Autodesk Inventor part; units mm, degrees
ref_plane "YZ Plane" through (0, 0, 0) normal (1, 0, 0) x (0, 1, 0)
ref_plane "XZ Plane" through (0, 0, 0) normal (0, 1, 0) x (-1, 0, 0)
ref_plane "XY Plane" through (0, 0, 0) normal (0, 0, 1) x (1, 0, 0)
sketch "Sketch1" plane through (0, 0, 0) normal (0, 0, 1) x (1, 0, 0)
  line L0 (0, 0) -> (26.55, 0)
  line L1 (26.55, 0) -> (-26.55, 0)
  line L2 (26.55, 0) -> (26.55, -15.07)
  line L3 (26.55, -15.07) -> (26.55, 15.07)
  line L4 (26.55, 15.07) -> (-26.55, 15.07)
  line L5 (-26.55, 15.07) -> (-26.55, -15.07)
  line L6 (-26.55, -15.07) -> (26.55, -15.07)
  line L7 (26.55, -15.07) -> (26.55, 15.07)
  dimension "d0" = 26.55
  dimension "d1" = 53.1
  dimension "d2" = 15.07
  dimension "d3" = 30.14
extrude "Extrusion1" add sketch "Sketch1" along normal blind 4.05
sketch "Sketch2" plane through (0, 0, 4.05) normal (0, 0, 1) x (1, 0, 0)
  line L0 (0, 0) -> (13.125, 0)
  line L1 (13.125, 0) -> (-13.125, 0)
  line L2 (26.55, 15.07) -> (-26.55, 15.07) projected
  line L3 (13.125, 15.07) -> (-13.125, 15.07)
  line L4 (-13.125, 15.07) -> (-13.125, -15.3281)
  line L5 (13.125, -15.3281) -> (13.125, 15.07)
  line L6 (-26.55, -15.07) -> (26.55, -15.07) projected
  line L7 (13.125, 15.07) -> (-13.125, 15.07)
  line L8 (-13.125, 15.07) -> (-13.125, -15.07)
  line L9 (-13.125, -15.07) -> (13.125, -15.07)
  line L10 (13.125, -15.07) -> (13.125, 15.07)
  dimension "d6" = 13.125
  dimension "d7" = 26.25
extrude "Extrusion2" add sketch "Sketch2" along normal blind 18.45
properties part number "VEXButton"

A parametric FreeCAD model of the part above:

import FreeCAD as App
import Part
import Sketcher
Q = App.Units.Quantity

doc = App.newDocument("Part")
body = doc.addObject("PartDesign::Body", "Body")

sketch1 = doc.addObject("Sketcher::SketchObject", "Sketch")
body.addObject(sketch1)
sketch1.AttachmentSupport = (doc.XY_Plane, [""])
sketch1.MapMode = "FlatFace"
sketch1.addGeometry([
    Part.LineSegment(App.Vector(-27, 15, 0), App.Vector(-27, -15, 0)),
    Part.LineSegment(App.Vector(-27, -15, 0), App.Vector(27, -15, 0)),
    Part.LineSegment(App.Vector(27, -15, 0), App.Vector(27, 15, 0)),
    Part.LineSegment(App.Vector(27, 15, 0), App.Vector(-27, 15, 0)),
], False)
sketch1.addConstraint([
    Sketcher.Constraint("Coincident", 0, 2, 1, 1),
    Sketcher.Constraint("Coincident", 1, 2, 2, 1),
    Sketcher.Constraint("Coincident", 2, 2, 3, 1),
    Sketcher.Constraint("Coincident", 3, 2, 0, 1),
    Sketcher.Constraint("Vertical", 0),
    Sketcher.Constraint("Horizontal", 1),
    Sketcher.Constraint("Vertical", 2),
    Sketcher.Constraint("Horizontal", 3),
    Sketcher.Constraint("Symmetric", 0, 2, 2, 2, -1, 1),
    Sketcher.Constraint("DistanceX", 1, 1, 1, 2, Q("53.1 mm")),
    Sketcher.Constraint("DistanceY", 0, 2, 0, 1, Q("30.14 mm")),
])
pad1 = doc.addObject("PartDesign::Pad", "Pad")
body.addObject(pad1)
pad1.Profile = sketch1
pad1.Length = 4.05

sketch2 = doc.addObject("Sketcher::SketchObject", "Sketch001")
body.addObject(sketch2)
sketch2.AttachmentSupport = (doc.XY_Plane, [""])
sketch2.MapMode = "FlatFace"
sketch2.AttachmentOffset = App.Placement(App.Vector(0, 0, 4.05), App.Rotation())
sketch2.addGeometry([
    Part.LineSegment(App.Vector(-13, 15, 0), App.Vector(-13, -15, 0)),
    Part.LineSegment(App.Vector(-13, -15, 0), App.Vector(13, -15, 0)),
    Part.LineSegment(App.Vector(13, -15, 0), App.Vector(13, 15, 0)),
    Part.LineSegment(App.Vector(13, 15, 0), App.Vector(-13, 15, 0)),
], False)
sketch2.addConstraint([
    Sketcher.Constraint("Coincident", 0, 2, 1, 1),
    Sketcher.Constraint("Coincident", 1, 2, 2, 1),
    Sketcher.Constraint("Coincident", 2, 2, 3, 1),
    Sketcher.Constraint("Coincident", 3, 2, 0, 1),
    Sketcher.Constraint("Vertical", 0),
    Sketcher.Constraint("Horizontal", 1),
    Sketcher.Constraint("Vertical", 2),
    Sketcher.Constraint("Horizontal", 3),
    Sketcher.Constraint("Symmetric", 0, 2, 2, 2, -1, 1),
    Sketcher.Constraint("DistanceX", 1, 1, 1, 2, Q("26.25 mm")),
    Sketcher.Constraint("DistanceY", 0, 2, 0, 1, Q("30.14 mm")),
])
pad2 = doc.addObject("PartDesign::Pad", "Pad001")
body.addObject(pad2)
pad2.Profile = sketch2
pad2.Length = 18.45

doc.recompute()
